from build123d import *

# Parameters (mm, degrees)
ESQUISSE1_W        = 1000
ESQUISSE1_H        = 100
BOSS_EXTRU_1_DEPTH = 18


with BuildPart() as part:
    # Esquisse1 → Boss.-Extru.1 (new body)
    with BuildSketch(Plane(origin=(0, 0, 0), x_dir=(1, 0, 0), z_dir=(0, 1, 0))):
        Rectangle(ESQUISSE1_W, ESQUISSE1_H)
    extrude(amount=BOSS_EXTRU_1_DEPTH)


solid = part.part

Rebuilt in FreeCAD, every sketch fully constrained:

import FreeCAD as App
import Part
import Sketcher
from FreeCAD import Vector

doc = App.newDocument("Part")
body = doc.addObject("PartDesign::Body", "Body")

# Sketch on XZ plane
sketch1 = doc.addObject("Sketcher::SketchObject", "Sketch")
body.addObject(sketch1)
sketch1.AttachmentSupport = (doc.XZ_Plane, [""])
sketch1.MapMode = "FlatFace"
sketch1.addGeometry(Part.LineSegment(Vector(-500, -50, 0), Vector(-500, 50, 0)), False)
sketch1.addGeometry(Part.LineSegment(Vector(-500, 50, 0), Vector(500, 50, 0)), False)
sketch1.addGeometry(Part.LineSegment(Vector(500, 50, 0), Vector(500, -50, 0)), False)
sketch1.addGeometry(Part.LineSegment(Vector(500, -50, 0), Vector(-500, -50, 0)), False)
sketch1.addConstraint(Sketcher.Constraint("Coincident", 0, 2, 1, 1))
sketch1.addConstraint(Sketcher.Constraint("Coincident", 1, 2, 2, 1))
sketch1.addConstraint(Sketcher.Constraint("Coincident", 2, 2, 3, 1))
sketch1.addConstraint(Sketcher.Constraint("Coincident", 3, 2, 0, 1))
sketch1.addConstraint(Sketcher.Constraint("Vertical", 0))
sketch1.addConstraint(Sketcher.Constraint("Horizontal", 1))
sketch1.addConstraint(Sketcher.Constraint("Vertical", 2))
sketch1.addConstraint(Sketcher.Constraint("Horizontal", 3))
sketch1.addConstraint(Sketcher.Constraint("Symmetric", 0, 2, 2, 2, -1, 1))
sketch1.addConstraint(Sketcher.Constraint("DistanceX", 1, 1, 1, 2, 1000.0))
sketch1.addConstraint(Sketcher.Constraint("DistanceY", 0, 1, 0, 2, 100.0))
pad1 = doc.addObject("PartDesign::Pad", "Pad")
body.addObject(pad1)
pad1.Profile = sketch1
pad1.Length = 18
pad1.Reversed = True

doc.recompute()
